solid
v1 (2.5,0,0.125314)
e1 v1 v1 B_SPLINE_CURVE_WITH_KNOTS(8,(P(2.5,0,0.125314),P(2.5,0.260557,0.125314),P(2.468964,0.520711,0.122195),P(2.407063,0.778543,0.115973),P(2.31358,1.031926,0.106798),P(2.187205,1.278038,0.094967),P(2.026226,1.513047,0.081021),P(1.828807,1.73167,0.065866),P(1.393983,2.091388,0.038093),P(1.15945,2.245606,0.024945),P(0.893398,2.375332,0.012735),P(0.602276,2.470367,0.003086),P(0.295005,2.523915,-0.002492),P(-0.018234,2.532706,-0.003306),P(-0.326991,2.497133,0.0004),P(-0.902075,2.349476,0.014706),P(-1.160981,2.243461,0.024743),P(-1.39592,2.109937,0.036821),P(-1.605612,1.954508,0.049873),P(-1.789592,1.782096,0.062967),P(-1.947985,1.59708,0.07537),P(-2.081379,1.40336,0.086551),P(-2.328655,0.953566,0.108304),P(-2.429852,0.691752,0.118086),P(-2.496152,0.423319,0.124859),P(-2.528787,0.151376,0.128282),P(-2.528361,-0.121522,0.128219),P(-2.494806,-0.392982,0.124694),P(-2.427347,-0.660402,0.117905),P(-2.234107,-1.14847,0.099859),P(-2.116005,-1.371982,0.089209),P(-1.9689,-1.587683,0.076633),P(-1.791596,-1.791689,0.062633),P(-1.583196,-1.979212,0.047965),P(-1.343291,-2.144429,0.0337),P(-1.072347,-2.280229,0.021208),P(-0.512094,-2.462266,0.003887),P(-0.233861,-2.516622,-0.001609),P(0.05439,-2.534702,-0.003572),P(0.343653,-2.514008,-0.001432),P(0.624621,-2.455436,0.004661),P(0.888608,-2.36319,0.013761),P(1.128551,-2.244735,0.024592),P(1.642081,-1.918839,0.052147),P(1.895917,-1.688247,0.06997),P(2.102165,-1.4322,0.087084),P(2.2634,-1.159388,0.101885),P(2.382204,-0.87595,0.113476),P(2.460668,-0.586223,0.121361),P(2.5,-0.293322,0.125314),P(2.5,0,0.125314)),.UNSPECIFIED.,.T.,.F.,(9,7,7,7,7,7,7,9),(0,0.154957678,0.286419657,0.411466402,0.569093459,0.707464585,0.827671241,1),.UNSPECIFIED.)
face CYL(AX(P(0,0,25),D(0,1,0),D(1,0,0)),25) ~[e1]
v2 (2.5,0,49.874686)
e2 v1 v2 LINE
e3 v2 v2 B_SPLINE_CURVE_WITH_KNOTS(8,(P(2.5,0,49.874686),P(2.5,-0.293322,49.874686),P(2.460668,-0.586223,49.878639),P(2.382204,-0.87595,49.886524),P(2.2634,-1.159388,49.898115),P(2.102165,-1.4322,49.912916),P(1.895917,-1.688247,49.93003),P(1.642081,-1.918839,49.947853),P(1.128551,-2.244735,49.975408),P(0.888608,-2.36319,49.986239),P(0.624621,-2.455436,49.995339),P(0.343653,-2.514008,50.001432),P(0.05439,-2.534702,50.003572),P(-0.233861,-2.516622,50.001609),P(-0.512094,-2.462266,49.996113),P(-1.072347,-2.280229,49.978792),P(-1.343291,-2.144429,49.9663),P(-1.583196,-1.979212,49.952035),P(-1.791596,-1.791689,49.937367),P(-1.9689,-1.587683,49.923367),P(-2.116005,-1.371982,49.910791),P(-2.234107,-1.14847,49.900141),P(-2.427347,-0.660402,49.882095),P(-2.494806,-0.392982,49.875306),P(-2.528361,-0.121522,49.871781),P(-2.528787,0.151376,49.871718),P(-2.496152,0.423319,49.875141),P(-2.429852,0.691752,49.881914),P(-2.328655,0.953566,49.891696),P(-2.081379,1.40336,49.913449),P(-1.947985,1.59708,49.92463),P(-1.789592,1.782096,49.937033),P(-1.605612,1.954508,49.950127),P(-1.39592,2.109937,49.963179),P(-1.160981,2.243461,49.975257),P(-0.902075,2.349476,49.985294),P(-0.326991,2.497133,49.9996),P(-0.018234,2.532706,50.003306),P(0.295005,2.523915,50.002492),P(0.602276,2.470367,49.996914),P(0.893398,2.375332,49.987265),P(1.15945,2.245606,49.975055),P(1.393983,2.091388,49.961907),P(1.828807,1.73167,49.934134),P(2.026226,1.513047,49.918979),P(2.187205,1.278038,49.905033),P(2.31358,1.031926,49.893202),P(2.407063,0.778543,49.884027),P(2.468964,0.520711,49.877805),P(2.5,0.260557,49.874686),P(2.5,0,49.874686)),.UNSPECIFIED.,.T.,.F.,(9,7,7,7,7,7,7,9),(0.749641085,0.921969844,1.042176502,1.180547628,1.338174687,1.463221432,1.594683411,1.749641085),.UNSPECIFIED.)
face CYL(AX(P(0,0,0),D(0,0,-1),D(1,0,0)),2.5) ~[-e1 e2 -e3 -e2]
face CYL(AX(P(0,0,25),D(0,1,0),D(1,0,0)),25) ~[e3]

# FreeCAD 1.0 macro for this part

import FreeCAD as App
import Part
import Sketcher

doc = App.newDocument("Part")
body = doc.addObject("PartDesign::Body", "Body")

# Sketch on XY plane
sketch1 = body.newObject("Sketcher::SketchObject", "Sketch")
sketch1.AttachmentSupport = (doc.getObject("XY_Plane"), [""])
sketch1.MapMode = "FlatFace"
sketch1.addGeometry(Part.Circle(App.Vector(0, 0, 0), App.Vector(0, 0, 1), 2.5), False)
sketch1.addConstraint(Sketcher.Constraint("Coincident", 0, 3, -1, 1))
sketch1.addConstraint(Sketcher.Constraint("Diameter", 0, 5.0))
pad1 = body.newObject("PartDesign::Pad", "Pad")
pad1.Profile = sketch1
pad1.Length = 50

# Sketch on XZ plane
sketch2 = body.newObject("Sketcher::SketchObject", "Sketch001")
sketch2.AttachmentSupport = (doc.getObject("XZ_Plane"), [""])
sketch2.MapMode = "FlatFace"
sketch2.addGeometry(Part.Circle(App.Vector(0, 25, 0), App.Vector(0, 0, 1), 27), False)
sketch2.addGeometry(Part.Circle(App.Vector(0, 25, 0), App.Vector(0, 0, 1), 25), False)
sketch2.addConstraint(Sketcher.Constraint("Coincident", 1, 3, 0, 3))
sketch2.addConstraint(Sketcher.Constraint("PointOnObject", 0, 3, -2))
sketch2.addConstraint(Sketcher.Constraint("Diameter", 1, 50.0))
sketch2.addConstraint(Sketcher.Constraint("DistanceY", -1, 1, 0, 3, 25.0))
sketch2.addConstraint(Sketcher.Constraint("Diameter", 0, 53.45487))
pocket1 = body.newObject("PartDesign::Pocket", "Pocket")
pocket1.Profile = sketch2
pocket1.Length = 25
pocket1.Midplane = True

doc.recompute()
